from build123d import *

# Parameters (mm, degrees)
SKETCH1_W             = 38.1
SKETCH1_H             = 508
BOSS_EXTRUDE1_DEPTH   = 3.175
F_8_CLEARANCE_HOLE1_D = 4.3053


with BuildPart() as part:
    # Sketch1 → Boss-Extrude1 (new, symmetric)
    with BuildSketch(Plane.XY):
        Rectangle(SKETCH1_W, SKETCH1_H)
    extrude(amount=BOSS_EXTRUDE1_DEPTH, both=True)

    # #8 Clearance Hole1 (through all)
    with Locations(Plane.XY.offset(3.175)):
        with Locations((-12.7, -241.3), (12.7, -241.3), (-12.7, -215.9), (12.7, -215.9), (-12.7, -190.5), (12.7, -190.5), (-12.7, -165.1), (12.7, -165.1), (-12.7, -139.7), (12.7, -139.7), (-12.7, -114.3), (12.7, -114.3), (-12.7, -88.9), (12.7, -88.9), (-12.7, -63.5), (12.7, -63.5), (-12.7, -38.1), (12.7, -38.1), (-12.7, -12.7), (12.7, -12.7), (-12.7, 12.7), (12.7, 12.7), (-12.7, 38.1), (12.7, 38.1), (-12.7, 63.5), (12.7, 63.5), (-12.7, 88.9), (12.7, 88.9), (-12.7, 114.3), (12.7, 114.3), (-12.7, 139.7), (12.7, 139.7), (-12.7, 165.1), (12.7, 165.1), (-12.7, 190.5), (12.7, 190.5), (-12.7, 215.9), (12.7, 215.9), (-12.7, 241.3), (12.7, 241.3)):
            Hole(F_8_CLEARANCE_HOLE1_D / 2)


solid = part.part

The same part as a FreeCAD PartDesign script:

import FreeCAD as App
import Part
import Sketcher

V = App.Vector
Q = App.Units.Quantity


def add_polygon(sketch, points):
    """Adds a closed chain of lines whose ends are joined by coincident constraints."""
    first, n = sketch.GeometryCount, len(points)
    for a, b in zip(points, points[1:] + points[:1]):
        sketch.addGeometry(Part.LineSegment(App.Vector(*a, 0), App.Vector(*b, 0)), False)
    for i in range(n):
        sketch.addConstraint(Sketcher.Constraint("Coincident", first + i, 2, first + (i + 1) % n, 1))

doc = App.newDocument("Part")
params = doc.addObject("Spreadsheet::Sheet", "Params")
for row, (alias, value) in enumerate([
    ("sketch1_height", "20 in"),
    ("sketch1_width", "1.5 in"),
    ("pad1_length", "0.25 in"),
    ("hole_diameter", "0.1695 in"),
], start=1):
    params.set(f"A{row}", alias)
    params.set(f"B{row}", "=" + value)
    params.setAlias(f"B{row}", alias)

body = doc.addObject("PartDesign::Body", "Body")

# Sketch on XY plane
sketch1 = doc.addObject("Sketcher::SketchObject", "Sketch")
body.addObject(sketch1)
sketch1.AttachmentSupport = (doc.XY_Plane, [""])
sketch1.MapMode = "FlatFace"
add_polygon(sketch1, [(-19, 254), (-19, -254), (19, -254), (19, 254)])  # lines 0-3
sketch1.addConstraint([
    Sketcher.Constraint("Vertical", 0),
    Sketcher.Constraint("Horizontal", 1),
    Sketcher.Constraint("Vertical", 2),
    Sketcher.Constraint("Horizontal", 3),
    Sketcher.Constraint("Symmetric", 0, 2, 2, 2, -1, 1),
    Sketcher.Constraint("DistanceY", 0, 2, 0, 1, Q("20 in")),
    Sketcher.Constraint("DistanceX", 1, 1, 1, 2, Q("1.5 in")),
])
sketch1.setExpression("Constraints[9]", "Params.sketch1_height")
sketch1.setExpression("Constraints[10]", "Params.sketch1_width")
pad1 = doc.addObject("PartDesign::Pad", "Pad")
body.addObject(pad1)
pad1.Profile = sketch1
pad1.setExpression("Length", "Params.pad1_length")
pad1.Midplane = True

# Sketch on XY plane
sketch2 = doc.addObject("Sketcher::SketchObject", "Sketch001")
body.addObject(sketch2)
sketch2.AttachmentSupport = (doc.XY_Plane, [""])
sketch2.MapMode = "FlatFace"
sketch2.AttachmentOffset = App.Placement(V(0, 0, 0.125 * 25.4), App.Rotation())
sketch2.addGeometry([
    Part.Circle(V(-12.7, -241.3, 0), V(0, 0, 1), 2.2),  # 0
    Part.Circle(V(12.7, -241.3, 0), V(0, 0, 1), 2.2),  # 1
    Part.Circle(V(-12.7, -215.9, 0), V(0, 0, 1), 2.2),  # 2
    Part.Circle(V(12.7, -215.9, 0), V(0, 0, 1), 2.2),  # 3
    Part.Circle(V(-12.7, -190.5, 0), V(0, 0, 1), 2.2),  # 4
    Part.Circle(V(12.7, -190.5, 0), V(0, 0, 1), 2.2),  # 5
    Part.Circle(V(-12.7, -165.1, 0), V(0, 0, 1), 2.2),  # 6
    Part.Circle(V(12.7, -165.1, 0), V(0, 0, 1), 2.2),  # 7
    Part.Circle(V(-12.7, -139.7, 0), V(0, 0, 1), 2.2),  # 8
    Part.Circle(V(12.7, -139.7, 0), V(0, 0, 1), 2.2),  # 9
    Part.Circle(V(-12.7, -114.3, 0), V(0, 0, 1), 2.2),  # 10
    Part.Circle(V(12.7, -114.3, 0), V(0, 0, 1), 2.2),  # 11
    Part.Circle(V(-12.7, -88.9, 0), V(0, 0, 1), 2.2),  # 12
    Part.Circle(V(12.7, -88.9, 0), V(0, 0, 1), 2.2),  # 13
    Part.Circle(V(-12.7, -63.5, 0), V(0, 0, 1), 2.2),  # 14
    Part.Circle(V(12.7, -63.5, 0), V(0, 0, 1), 2.2),  # 15
    Part.Circle(V(-12.7, -38.1, 0), V(0, 0, 1), 2.2),  # 16
    Part.Circle(V(12.7, -38.1, 0), V(0, 0, 1), 2.2),  # 17
    Part.Circle(V(-12.7, -12.7, 0), V(0, 0, 1), 2.2),  # 18
    Part.Circle(V(12.7, -12.7, 0), V(0, 0, 1), 2.2),  # 19
    Part.Circle(V(-12.7, 12.7, 0), V(0, 0, 1), 2.2),  # 20
    Part.Circle(V(12.7, 12.7, 0), V(0, 0, 1), 2.2),  # 21
    Part.Circle(V(-12.7, 38.1, 0), V(0, 0, 1), 2.2),  # 22
    Part.Circle(V(12.7, 38.1, 0), V(0, 0, 1), 2.2),  # 23
    Part.Circle(V(-12.7, 63.5, 0), V(0, 0, 1), 2.2),  # 24
    Part.Circle(V(12.7, 63.5, 0), V(0, 0, 1), 2.2),  # 25
    Part.Circle(V(-12.7, 88.9, 0), V(0, 0, 1), 2.2),  # 26
    Part.Circle(V(12.7, 88.9, 0), V(0, 0, 1), 2.2),  # 27
    Part.Circle(V(-12.7, 114.3, 0), V(0, 0, 1), 2.2),  # 28
    Part.Circle(V(12.7, 114.3, 0), V(0, 0, 1), 2.2),  # 29
    Part.Circle(V(-12.7, 139.7, 0), V(0, 0, 1), 2.2),  # 30
    Part.Circle(V(12.7, 139.7, 0), V(0, 0, 1), 2.2),  # 31
    Part.Circle(V(-12.7, 165.1, 0), V(0, 0, 1), 2.2),  # 32
    Part.Circle(V(12.7, 165.1, 0), V(0, 0, 1), 2.2),  # 33
    Part.Circle(V(-12.7, 190.5, 0), V(0, 0, 1), 2.2),  # 34
    Part.Circle(V(12.7, 190.5, 0), V(0, 0, 1), 2.2),  # 35
    Part.Circle(V(-12.7, 215.9, 0), V(0, 0, 1), 2.2),  # 36
    Part.Circle(V(12.7, 215.9, 0), V(0, 0, 1), 2.2),  # 37
    Part.Circle(V(-12.7, 241.3, 0), V(0, 0, 1), 2.2),  # 38
    Part.Circle(V(12.7, 241.3, 0), V(0, 0, 1), 2.2),  # 39
], False)
sketch2.addConstraint([
    Sketcher.Constraint("Equal", 0, 1),
    Sketcher.Constraint("Equal", 1, 2),
    Sketcher.Constraint("Equal", 2, 3),
    Sketcher.Constraint("Equal", 3, 4),
    Sketcher.Constraint("Equal", 4, 5),
    Sketcher.Constraint("Equal", 5, 6),
    Sketcher.Constraint("Equal", 6, 7),
    Sketcher.Constraint("Equal", 7, 8),
    Sketcher.Constraint("Equal", 8, 9),
    Sketcher.Constraint("Equal", 9, 10),
    Sketcher.Constraint("Equal", 10, 11),
    Sketcher.Constraint("Equal", 11, 12),
    Sketcher.Constraint("Equal", 12, 13),
    Sketcher.Constraint("Equal", 13, 14),
    Sketcher.Constraint("Equal", 14, 15),
    Sketcher.Constraint("Equal", 15, 16),
    Sketcher.Constraint("Equal", 16, 17),
    Sketcher.Constraint("Equal", 17, 18),
    Sketcher.Constraint("Equal", 18, 19),
    Sketcher.Constraint("Equal", 19, 20),
    Sketcher.Constraint("Equal", 20, 21),
    Sketcher.Constraint("Equal", 21, 22),
    Sketcher.Constraint("Equal", 22, 23),
    Sketcher.Constraint("Equal", 23, 24),
    Sketcher.Constraint("Equal", 24, 25),
    Sketcher.Constraint("Equal", 25, 26),
    Sketcher.Constraint("Equal", 26, 27),
    Sketcher.Constraint("Equal", 27, 28),
    Sketcher.Constraint("Equal", 28, 29),
    Sketcher.Constraint("Equal", 29, 30),
    Sketcher.Constraint("Equal", 30, 31),
    Sketcher.Constraint("Equal", 31, 32),
    Sketcher.Constraint("Equal", 32, 33),
    Sketcher.Constraint("Equal", 33, 34),
    Sketcher.Constraint("Equal", 34, 35),
    Sketcher.Constraint("Equal", 35, 36),
    Sketcher.Constraint("Equal", 36, 37),
    Sketcher.Constraint("Equal", 37, 38),
    Sketcher.Constraint("Equal", 38, 39),
    Sketcher.Constraint("Symmetric", 19, 3, 20, 3, -1, 1),
    Sketcher.Constraint("Symmetric", 18, 3, 21, 3, -1, 1),
    Sketcher.Constraint("Symmetric", 17, 3, 22, 3, -1, 1),
    Sketcher.Constraint("Symmetric", 16, 3, 23, 3, -1, 1),
    Sketcher.Constraint("Symmetric", 15, 3, 24, 3, -1, 1),
    Sketcher.Constraint("Symmetric", 14, 3, 25, 3, -1, 1),
    Sketcher.Constraint("Symmetric", 13, 3, 26, 3, -1, 1),
    Sketcher.Constraint("Symmetric", 12, 3, 27, 3, -1, 1),
    Sketcher.Constraint("Symmetric", 11, 3, 28, 3, -1, 1),
    Sketcher.Constraint("Symmetric", 10, 3, 29, 3, -1, 1),
    Sketcher.Constraint("Symmetric", 9, 3, 30, 3, -1, 1),
    Sketcher.Constraint("Symmetric", 8, 3, 31, 3, -1, 1),
    Sketcher.Constraint("Symmetric", 7, 3, 32, 3, -1, 1),
    Sketcher.Constraint("Symmetric", 6, 3, 33, 3, -1, 1),
    Sketcher.Constraint("Symmetric", 5, 3, 34, 3, -1, 1),
    Sketcher.Constraint("Symmetric", 4, 3, 35, 3, -1, 1),
    Sketcher.Constraint("Symmetric", 3, 3, 36, 3, -1, 1),
    Sketcher.Constraint("Symmetric", 2, 3, 37, 3, -1, 1),
    Sketcher.Constraint("Symmetric", 1, 3, 38, 3, -1, 1),
    Sketcher.Constraint("Symmetric", 0, 3, 39, 3, -1, 1),
    Sketcher.Constraint("Symmetric", 0, 3, 1, 3, -2),
    Sketcher.Constraint("Symmetric", 2, 3, 3, 3, -2),
    Sketcher.Constraint("Symmetric", 4, 3, 5, 3, -2),
    Sketcher.Constraint("Symmetric", 6, 3, 7, 3, -2),
    Sketcher.Constraint("Symmetric", 8, 3, 9, 3, -2),
    Sketcher.Constraint("Symmetric", 10, 3, 11, 3, -2),
    Sketcher.Constraint("Symmetric", 12, 3, 13, 3, -2),
    Sketcher.Constraint("Symmetric", 14, 3, 15, 3, -2),
    Sketcher.Constraint("Symmetric", 16, 3, 17, 3, -2),
    Sketcher.Constraint("Symmetric", 18, 3, 19, 3, -2),
    Sketcher.Constraint("Vertical", 0, 3, 2, 3),
    Sketcher.Constraint("Vertical", 2, 3, 4, 3),
    Sketcher.Constraint("Vertical", 4, 3, 6, 3),
    Sketcher.Constraint("Vertical", 6, 3, 8, 3),
    Sketcher.Constraint("Vertical", 8, 3, 10, 3),
    Sketcher.Constraint("Vertical", 10, 3, 12, 3),
    Sketcher.Constraint("Vertical", 12, 3, 14, 3),
    Sketcher.Constraint("Vertical", 14, 3, 16, 3),
    Sketcher.Constraint("Vertical", 16, 3, 18, 3),
    Sketcher.Constraint("DistanceX", 0, 3, 1, 3, Q("1 in")),
    Sketcher.Constraint("DistanceY", 0, 3, 2, 3, Q("1 in")),
    Sketcher.Constraint("DistanceY", 2, 3, 4, 3, Q("1 in")),
    Sketcher.Constraint("DistanceY", 4, 3, 6, 3, Q("1 in")),
    Sketcher.Constraint("DistanceY", 6, 3, 8, 3, Q("1 in")),
    Sketcher.Constraint("DistanceY", 8, 3, 10, 3, Q("1 in")),
    Sketcher.Constraint("DistanceY", 10, 3, 12, 3, Q("1 in")),
    Sketcher.Constraint("DistanceY", 12, 3, 14, 3, Q("1 in")),
    Sketcher.Constraint("DistanceY", 14, 3, 16, 3, Q("1 in")),
    Sketcher.Constraint("DistanceY", 16, 3, 18, 3, Q("1 in")),
    Sketcher.Constraint("DistanceY", 18, 3, 20, 3, Q("1 in")),
    Sketcher.Constraint("Diameter", 0, Q("0.1695 in")),
])
doc.recompute()
hole = doc.addObject("PartDesign::Hole", "Hole")
body.addObject(hole)
hole.Profile = sketch2
hole.ThreadType = "None"
hole.setExpression("Diameter", "Params.hole_diameter")
hole.DepthType = "ThroughAll"

doc.recompute()
